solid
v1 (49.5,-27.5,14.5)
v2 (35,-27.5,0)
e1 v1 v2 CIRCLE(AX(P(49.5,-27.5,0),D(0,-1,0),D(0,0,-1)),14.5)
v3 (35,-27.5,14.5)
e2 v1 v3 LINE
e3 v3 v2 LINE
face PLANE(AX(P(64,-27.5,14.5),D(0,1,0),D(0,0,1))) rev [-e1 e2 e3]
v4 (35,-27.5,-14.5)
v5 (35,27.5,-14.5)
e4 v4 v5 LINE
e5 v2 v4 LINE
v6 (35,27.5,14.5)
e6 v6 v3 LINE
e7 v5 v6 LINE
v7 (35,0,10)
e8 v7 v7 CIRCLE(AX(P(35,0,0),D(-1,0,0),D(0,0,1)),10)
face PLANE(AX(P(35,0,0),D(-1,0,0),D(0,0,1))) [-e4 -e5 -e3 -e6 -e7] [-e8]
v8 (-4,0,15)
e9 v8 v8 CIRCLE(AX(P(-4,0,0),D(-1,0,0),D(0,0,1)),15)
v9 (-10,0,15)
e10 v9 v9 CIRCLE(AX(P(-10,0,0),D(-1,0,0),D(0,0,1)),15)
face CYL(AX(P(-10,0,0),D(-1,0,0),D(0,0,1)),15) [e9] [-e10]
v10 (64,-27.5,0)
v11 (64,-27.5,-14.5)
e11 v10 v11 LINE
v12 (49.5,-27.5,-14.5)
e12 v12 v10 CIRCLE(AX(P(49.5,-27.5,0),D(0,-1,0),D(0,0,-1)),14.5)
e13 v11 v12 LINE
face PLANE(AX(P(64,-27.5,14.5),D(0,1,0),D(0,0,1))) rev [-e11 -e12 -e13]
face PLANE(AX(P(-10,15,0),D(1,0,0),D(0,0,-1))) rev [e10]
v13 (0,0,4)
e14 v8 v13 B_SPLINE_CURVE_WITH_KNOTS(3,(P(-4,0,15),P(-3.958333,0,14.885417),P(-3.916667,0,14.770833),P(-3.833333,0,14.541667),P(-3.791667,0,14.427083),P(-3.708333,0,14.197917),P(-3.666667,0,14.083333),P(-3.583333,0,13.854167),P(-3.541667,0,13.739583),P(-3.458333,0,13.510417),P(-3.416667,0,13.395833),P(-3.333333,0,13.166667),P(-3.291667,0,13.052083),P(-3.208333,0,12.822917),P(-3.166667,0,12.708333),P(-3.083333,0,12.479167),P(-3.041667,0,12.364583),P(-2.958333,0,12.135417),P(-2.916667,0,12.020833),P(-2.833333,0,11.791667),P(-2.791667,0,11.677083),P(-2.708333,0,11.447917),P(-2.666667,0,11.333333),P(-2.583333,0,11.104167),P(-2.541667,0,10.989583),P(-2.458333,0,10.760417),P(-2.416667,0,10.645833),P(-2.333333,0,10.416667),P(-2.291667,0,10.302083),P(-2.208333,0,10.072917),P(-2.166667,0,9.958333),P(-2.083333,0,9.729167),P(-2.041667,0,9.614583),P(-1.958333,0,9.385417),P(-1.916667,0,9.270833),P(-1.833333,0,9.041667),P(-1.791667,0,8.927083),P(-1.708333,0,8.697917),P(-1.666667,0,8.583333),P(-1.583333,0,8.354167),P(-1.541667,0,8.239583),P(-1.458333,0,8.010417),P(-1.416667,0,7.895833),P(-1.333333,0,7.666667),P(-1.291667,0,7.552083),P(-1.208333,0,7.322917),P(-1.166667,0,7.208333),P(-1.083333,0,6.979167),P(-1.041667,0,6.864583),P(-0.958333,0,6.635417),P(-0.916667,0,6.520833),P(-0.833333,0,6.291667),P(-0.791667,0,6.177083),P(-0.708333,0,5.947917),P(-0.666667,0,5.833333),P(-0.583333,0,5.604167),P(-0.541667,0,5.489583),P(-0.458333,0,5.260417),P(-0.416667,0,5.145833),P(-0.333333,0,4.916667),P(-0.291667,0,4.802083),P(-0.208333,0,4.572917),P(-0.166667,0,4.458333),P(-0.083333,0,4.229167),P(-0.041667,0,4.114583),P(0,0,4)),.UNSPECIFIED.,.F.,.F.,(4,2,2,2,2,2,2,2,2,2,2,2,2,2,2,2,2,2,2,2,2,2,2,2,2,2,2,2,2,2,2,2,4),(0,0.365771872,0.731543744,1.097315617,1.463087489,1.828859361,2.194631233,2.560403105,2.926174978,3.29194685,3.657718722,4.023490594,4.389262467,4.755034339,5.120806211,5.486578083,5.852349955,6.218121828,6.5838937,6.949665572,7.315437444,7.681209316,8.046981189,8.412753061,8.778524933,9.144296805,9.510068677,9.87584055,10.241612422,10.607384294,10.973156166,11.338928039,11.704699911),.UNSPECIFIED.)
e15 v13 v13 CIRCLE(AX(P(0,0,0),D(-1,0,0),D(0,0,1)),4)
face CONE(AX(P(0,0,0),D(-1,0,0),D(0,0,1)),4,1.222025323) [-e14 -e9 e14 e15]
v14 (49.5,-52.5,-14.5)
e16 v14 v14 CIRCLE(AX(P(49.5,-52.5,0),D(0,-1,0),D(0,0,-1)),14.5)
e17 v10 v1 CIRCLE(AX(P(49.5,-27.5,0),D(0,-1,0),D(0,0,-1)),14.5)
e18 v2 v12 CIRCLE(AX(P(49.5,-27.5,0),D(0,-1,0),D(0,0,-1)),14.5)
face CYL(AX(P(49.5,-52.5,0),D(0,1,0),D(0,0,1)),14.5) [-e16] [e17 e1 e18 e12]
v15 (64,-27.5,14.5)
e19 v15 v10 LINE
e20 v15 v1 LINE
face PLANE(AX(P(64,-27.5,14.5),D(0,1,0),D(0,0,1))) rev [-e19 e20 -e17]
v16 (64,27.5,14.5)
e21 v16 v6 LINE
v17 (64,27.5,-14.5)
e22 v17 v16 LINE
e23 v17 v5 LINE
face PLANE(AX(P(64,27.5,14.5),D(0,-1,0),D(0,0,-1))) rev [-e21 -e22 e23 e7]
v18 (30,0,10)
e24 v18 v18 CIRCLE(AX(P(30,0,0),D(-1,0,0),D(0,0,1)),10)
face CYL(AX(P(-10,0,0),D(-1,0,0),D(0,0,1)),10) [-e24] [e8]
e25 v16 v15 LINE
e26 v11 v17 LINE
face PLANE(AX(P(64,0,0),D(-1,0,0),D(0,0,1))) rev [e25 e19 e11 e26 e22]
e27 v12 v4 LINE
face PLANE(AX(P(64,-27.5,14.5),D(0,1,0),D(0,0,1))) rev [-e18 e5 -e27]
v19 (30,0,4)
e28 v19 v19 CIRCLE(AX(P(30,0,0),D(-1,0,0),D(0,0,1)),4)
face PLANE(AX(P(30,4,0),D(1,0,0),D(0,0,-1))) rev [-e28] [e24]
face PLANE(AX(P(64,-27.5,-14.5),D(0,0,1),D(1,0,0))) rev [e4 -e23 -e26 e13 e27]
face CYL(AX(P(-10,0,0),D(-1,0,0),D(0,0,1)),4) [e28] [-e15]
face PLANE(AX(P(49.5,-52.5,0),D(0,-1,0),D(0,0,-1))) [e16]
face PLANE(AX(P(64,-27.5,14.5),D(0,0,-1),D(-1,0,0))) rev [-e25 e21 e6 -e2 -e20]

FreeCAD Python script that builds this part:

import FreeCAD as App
import Part
import Sketcher

V = App.Vector


def add_polygon(sketch, points):
    """Adds a closed chain of lines whose ends are joined by coincident constraints."""
    first, n = sketch.GeometryCount, len(points)
    for a, b in zip(points, points[1:] + points[:1]):
        sketch.addGeometry(Part.LineSegment(App.Vector(*a, 0), App.Vector(*b, 0)), False)
    for i in range(n):
        sketch.addConstraint(Sketcher.Constraint("Coincident", first + i, 2, first + (i + 1) % n, 1))

doc = App.newDocument("Part")
body = doc.addObject("PartDesign::Body", "Body")

sketch1 = body.newObject("Sketcher::SketchObject", "Sketch")
sketch1.AttachmentSupport = (doc.getObject("XY_Plane"), [""])
sketch1.MapMode = "FlatFace"
add_polygon(sketch1, [(-10, 15), (-10, 0), (35, 0), (35, 10), (30, 10), (30, 4), (0, 4), (-4, 15)])
sketch1.addConstraint(Sketcher.Constraint("Vertical", 0))
sketch1.addConstraint(Sketcher.Constraint("Horizontal", 1))
sketch1.addConstraint(Sketcher.Constraint("Vertical", 2))
sketch1.addConstraint(Sketcher.Constraint("Horizontal", 3))
sketch1.addConstraint(Sketcher.Constraint("Vertical", 4))
sketch1.addConstraint(Sketcher.Constraint("Horizontal", 5))
sketch1.addConstraint(Sketcher.Constraint("Horizontal", 7))
sketch1.addConstraint(Sketcher.Constraint("PointOnObject", 0, 2, -1))
sketch1.addConstraint(Sketcher.Constraint("PointOnObject", 5, 2, -2))
sketch1.addConstraint(Sketcher.Constraint("Equal", 7, 4))
sketch1.addConstraint(Sketcher.Constraint("DistanceX", 1, 1, 1, 2, 45.0))
sketch1.addConstraint(Sketcher.Constraint("DistanceX", 3, 2, 3, 1, 5.0))
sketch1.addConstraint(Sketcher.Constraint("DistanceX", 5, 2, 5, 1, 30.0))
sketch1.addConstraint(Sketcher.Constraint("DistanceX", 7, 2, 7, 1, 6.0))
sketch1.addConstraint(Sketcher.Constraint("DistanceY", 0, 2, 0, 1, 15.0))
sketch1.addConstraint(Sketcher.Constraint("DistanceY", 2, 1, 2, 2, 10.0))
revolution = body.newObject("PartDesign::Revolution", "Revolution")
revolution.Profile = sketch1
revolution.ReferenceAxis = (sketch1, ["H_Axis"])
revolution.Angle = 360

sketch2 = body.newObject("Sketcher::SketchObject", "Sketch001")
sketch2.AttachmentSupport = (doc.getObject("YZ_Plane"), [""])
sketch2.MapMode = "FlatFace"
sketch2.AttachmentOffset = App.Placement(V(0, 0, 35), App.Rotation())
add_polygon(sketch2, [(28, 14), (-28, 14), (-28, -14), (28, -14)])
sketch2.addConstraint(Sketcher.Constraint("Horizontal", 0))
sketch2.addConstraint(Sketcher.Constraint("Vertical", 1))
sketch2.addConstraint(Sketcher.Constraint("Horizontal", 2))
sketch2.addConstraint(Sketcher.Constraint("Vertical", 3))
sketch2.addConstraint(Sketcher.Constraint("Symmetric", 0, 2, 2, 2, -1, 1))
sketch2.addConstraint(Sketcher.Constraint("DistanceX", 0, 2, 0, 1, 55.0))
sketch2.addConstraint(Sketcher.Constraint("DistanceY", 1, 2, 1, 1, 29.0))
pad1 = body.newObject("PartDesign::Pad", "Pad")
pad1.Profile = sketch2
pad1.Length = 29

sketch3 = body.newObject("Sketcher::SketchObject", "Sketch002")
sketch3.AttachmentSupport = (doc.getObject("XZ_Plane"), [""])
sketch3.MapMode = "FlatFace"
sketch3.AttachmentOffset = App.Placement(V(0, 0, 27.5), App.Rotation())
sketch3.addGeometry(Part.Circle(V(50, 0, 0), V(0, 0, 1), 14), False)
sketch3.addConstraint(Sketcher.Constraint("PointOnObject", 0, 3, -1))
sketch3.addConstraint(Sketcher.Constraint("Diameter", 0, 29.0))
sketch3.addConstraint(Sketcher.Constraint("DistanceX", -1, 1, 0, 3, 49.5))
pad2 = body.newObject("PartDesign::Pad", "Pad001")
pad2.Profile = sketch3
pad2.Length = 25

doc.recompute()
